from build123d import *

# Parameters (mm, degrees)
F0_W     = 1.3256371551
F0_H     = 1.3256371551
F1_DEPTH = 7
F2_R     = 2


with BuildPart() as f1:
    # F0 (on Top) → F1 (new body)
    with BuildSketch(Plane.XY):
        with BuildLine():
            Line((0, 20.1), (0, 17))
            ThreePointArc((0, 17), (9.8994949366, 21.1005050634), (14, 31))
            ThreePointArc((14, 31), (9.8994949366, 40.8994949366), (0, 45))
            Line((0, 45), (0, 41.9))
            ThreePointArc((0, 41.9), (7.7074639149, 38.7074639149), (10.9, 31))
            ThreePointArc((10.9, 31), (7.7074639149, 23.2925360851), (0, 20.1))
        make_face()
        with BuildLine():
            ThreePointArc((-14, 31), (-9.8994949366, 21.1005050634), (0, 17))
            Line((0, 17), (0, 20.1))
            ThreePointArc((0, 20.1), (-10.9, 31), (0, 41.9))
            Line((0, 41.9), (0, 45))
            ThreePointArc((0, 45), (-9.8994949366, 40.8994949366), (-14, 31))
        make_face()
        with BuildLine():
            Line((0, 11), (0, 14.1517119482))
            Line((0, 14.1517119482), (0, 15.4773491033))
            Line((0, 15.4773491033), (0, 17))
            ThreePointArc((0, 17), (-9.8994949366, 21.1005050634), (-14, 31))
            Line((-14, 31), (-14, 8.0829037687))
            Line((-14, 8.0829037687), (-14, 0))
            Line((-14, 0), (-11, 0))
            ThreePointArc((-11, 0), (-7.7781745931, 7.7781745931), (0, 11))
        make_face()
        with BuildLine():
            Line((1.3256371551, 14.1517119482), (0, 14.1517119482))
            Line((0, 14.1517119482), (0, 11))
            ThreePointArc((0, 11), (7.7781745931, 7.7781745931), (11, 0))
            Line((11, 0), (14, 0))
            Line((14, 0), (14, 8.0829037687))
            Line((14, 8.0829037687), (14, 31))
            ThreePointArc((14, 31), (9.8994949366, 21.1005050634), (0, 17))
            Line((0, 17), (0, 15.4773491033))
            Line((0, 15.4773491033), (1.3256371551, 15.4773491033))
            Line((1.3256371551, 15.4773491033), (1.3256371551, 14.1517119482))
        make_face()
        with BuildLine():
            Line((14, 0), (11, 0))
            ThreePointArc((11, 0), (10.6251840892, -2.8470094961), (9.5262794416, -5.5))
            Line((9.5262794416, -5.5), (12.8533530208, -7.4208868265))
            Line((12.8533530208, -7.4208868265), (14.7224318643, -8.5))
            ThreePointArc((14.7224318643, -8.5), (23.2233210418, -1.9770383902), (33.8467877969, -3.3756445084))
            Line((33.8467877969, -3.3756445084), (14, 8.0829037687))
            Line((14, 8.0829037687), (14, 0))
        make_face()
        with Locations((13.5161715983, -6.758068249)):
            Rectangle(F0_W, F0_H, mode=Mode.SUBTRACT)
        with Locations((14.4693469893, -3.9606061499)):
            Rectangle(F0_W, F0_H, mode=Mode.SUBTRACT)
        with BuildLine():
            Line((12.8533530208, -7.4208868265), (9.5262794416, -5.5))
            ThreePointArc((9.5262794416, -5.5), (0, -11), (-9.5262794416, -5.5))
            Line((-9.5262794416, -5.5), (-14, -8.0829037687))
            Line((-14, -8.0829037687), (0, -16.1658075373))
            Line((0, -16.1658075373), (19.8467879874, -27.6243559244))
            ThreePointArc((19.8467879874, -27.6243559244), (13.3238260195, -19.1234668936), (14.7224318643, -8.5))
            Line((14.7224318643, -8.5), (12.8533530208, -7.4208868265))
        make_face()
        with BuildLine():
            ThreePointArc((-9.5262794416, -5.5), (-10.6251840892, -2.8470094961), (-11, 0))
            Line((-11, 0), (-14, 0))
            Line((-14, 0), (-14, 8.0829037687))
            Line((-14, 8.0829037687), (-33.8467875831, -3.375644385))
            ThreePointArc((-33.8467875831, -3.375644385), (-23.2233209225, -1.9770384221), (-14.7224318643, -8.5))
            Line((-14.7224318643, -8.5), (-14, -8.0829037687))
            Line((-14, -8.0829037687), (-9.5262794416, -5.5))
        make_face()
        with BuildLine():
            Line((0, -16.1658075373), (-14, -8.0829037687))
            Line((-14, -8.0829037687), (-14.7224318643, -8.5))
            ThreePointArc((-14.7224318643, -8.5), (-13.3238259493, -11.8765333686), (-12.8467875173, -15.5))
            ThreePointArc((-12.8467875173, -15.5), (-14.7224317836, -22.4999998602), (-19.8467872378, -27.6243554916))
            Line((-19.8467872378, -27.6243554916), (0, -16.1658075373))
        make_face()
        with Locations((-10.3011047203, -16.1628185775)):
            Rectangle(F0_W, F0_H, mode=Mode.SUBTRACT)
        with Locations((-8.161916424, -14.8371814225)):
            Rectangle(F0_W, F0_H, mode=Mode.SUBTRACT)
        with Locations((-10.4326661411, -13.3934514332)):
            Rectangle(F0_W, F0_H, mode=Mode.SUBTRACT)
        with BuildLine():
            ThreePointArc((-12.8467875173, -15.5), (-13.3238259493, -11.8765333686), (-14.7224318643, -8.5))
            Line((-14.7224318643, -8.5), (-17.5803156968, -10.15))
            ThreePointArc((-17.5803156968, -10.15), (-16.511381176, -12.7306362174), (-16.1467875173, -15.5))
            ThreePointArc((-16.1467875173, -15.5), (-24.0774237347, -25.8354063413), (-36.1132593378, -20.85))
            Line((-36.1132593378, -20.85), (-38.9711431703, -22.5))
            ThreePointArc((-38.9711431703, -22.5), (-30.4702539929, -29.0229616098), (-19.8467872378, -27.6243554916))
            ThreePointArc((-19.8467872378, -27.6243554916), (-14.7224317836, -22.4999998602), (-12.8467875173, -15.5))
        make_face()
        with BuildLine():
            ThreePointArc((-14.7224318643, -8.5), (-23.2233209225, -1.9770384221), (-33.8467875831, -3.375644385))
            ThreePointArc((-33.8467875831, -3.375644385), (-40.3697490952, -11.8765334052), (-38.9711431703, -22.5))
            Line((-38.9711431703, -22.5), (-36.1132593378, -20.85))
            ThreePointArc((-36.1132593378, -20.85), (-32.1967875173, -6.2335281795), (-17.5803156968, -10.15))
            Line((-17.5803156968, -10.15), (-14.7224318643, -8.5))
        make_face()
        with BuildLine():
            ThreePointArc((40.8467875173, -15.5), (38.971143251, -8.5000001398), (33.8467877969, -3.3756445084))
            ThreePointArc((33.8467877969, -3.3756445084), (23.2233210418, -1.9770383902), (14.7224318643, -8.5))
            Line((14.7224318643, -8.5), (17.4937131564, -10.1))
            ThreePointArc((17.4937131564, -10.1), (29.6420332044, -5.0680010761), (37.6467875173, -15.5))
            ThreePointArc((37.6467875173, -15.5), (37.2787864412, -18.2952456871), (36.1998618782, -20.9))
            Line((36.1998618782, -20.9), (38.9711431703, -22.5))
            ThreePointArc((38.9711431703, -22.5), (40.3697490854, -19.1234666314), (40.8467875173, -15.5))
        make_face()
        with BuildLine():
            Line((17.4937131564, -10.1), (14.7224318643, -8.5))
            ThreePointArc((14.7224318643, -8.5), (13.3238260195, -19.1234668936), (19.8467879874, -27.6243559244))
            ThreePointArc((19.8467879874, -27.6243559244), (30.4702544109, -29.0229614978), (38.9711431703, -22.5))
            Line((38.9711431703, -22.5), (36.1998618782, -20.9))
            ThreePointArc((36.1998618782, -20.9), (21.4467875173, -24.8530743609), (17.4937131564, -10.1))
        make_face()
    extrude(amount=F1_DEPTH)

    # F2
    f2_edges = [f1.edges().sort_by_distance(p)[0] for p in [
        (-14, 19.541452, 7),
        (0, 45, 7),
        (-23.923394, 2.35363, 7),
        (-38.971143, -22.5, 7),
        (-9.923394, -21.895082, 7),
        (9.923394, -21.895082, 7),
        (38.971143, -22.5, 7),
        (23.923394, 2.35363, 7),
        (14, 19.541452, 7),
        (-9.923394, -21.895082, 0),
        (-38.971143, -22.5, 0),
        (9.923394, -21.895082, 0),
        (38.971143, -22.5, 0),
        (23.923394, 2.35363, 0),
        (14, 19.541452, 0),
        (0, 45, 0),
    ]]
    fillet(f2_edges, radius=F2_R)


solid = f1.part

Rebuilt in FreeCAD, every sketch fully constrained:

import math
import FreeCAD as App
import Part
import Sketcher
from FreeCAD import Vector
Q = App.Units.Quantity


def edges_at(feature, points):
    """Names of the edges that pass closest to the given points."""
    edges = feature.Shape.Edges
    near = lambda p: min(range(len(edges)), key=lambda i: edges[i].distToShape(Part.Vertex(*p))[0])
    return sorted({f"Edge{near(p) + 1}" for p in points})


def add_polygon(sketch, points):
    """Adds a closed chain of lines whose ends are joined by coincident constraints."""
    first, n = sketch.GeometryCount, len(points)
    for a, b in zip(points, points[1:] + points[:1]):
        sketch.addGeometry(Part.LineSegment(App.Vector(*a, 0), App.Vector(*b, 0)), False)
    for i in range(n):
        sketch.addConstraint(Sketcher.Constraint("Coincident", first + i, 2, first + (i + 1) % n, 1))

doc = App.newDocument("Part")
body = doc.addObject("PartDesign::Body", "Body")

# Sketch on XY plane
sketch1 = body.newObject("Sketcher::SketchObject", "Sketch")
sketch1.AttachmentSupport = (doc.getObject("XY_Plane"), [""])
sketch1.MapMode = "FlatFace"
sketch1.addGeometry(Part.LineSegment(Vector(33.8, -3.4, 0), Vector(14, 8.1, 0)), False)  # 0
sketch1.addGeometry(Part.LineSegment(Vector(14, 8.1, 0), Vector(14, 31, 0)), False)  # 1
sketch1.addGeometry(Part.ArcOfCircle(Part.Circle(Vector(0, 31, 0), Vector(0, 0, 1), 14), math.radians(0), math.radians(90)), False)  # 2
sketch1.addGeometry(Part.ArcOfCircle(Part.Circle(Vector(0, 31, 0), Vector(0, 0, 1), 14), math.radians(90), math.radians(180)), False)  # 3
sketch1.addGeometry(Part.LineSegment(Vector(-14, 31, 0), Vector(-14, 8.1, 0)), False)  # 4
sketch1.addGeometry(Part.LineSegment(Vector(-14, 8.1, 0), Vector(-33.8, -3.4, 0)), False)  # 5
sketch1.addGeometry(Part.ArcOfCircle(Part.Circle(Vector(-26.8, -15.5, 0), Vector(0, 0, 1), 14), math.radians(120), math.radians(210)), False)  # 6
sketch1.addGeometry(Part.ArcOfCircle(Part.Circle(Vector(-26.8, -15.5, 0), Vector(0, 0, 1), 14), math.radians(-150), math.radians(-60)), False)  # 7
sketch1.addGeometry(Part.LineSegment(Vector(-19.8, -27.6, 0), Vector(0, -16.2, 0)), False)  # 8
sketch1.addGeometry(Part.LineSegment(Vector(0, -16.2, 0), Vector(19.8, -27.6, 0)), False)  # 9
sketch1.addGeometry(Part.ArcOfCircle(Part.Circle(Vector(26.8, -15.5, 0), Vector(0, 0, 1), 14), math.radians(-120), math.radians(-30)), False)  # 10
sketch1.addGeometry(Part.ArcOfCircle(Part.Circle(Vector(26.8, -15.5, 0), Vector(0, 0, 1), 14), math.radians(-30), math.radians(0)), False)  # 11
sketch1.addGeometry(Part.ArcOfCircle(Part.Circle(Vector(26.8, -15.5, 0), Vector(0, 0, 1), 14), math.radians(0), math.radians(60)), False)  # 12
sketch1.addGeometry(Part.ArcOfCircle(Part.Circle(Vector(26.8, -15.5, 0), Vector(0, 0, 1), 10.8), math.radians(0), math.radians(150)), False)  # 13
sketch1.addGeometry(Part.ArcOfCircle(Part.Circle(Vector(26.8, -15.5, 0), Vector(0, 0, 1), 10.8), math.radians(-30), math.radians(0)), False)  # 14
sketch1.addGeometry(Part.ArcOfCircle(Part.Circle(Vector(26.8, -15.5, 0), Vector(0, 0, 1), 10.8), math.radians(150), math.radians(330)), False)  # 15
sketch1.addGeometry(Part.ArcOfCircle(Part.Circle(Vector(-26.8, -15.5, 0), Vector(0, 0, 1), 10.7), math.radians(0), math.radians(30)), False)  # 16
sketch1.addGeometry(Part.ArcOfCircle(Part.Circle(Vector(-26.8, -15.5, 0), Vector(0, 0, 1), 10.7), math.radians(30), math.radians(360)), False)  # 17
add_polygon(sketch1, [(-9.6, -16.8), (-11, -16.8), (-11, -15.5), (-9.6, -15.5)])  # lines 18-21
add_polygon(sketch1, [(-9.8, -14.1), (-11.1, -14.1), (-11.1, -12.7), (-9.8, -12.7)])  # lines 22-25
add_polygon(sketch1, [(-7.5, -15.5), (-8.8, -15.5), (-8.8, -14.2), (-7.5, -14.2)])  # lines 26-29
sketch1.addGeometry(Part.ArcOfCircle(Part.Circle(Vector(0, 0, 0), Vector(0, 0, 1), 11), math.radians(90), math.radians(180)), False)  # 30
sketch1.addGeometry(Part.ArcOfCircle(Part.Circle(Vector(0, 0, 0), Vector(0, 0, 1), 11), math.radians(0), math.radians(90)), False)  # 31
sketch1.addGeometry(Part.ArcOfCircle(Part.Circle(Vector(0, 0, 0), Vector(0, 0, 1), 11), math.radians(-30), math.radians(0)), False)  # 32
sketch1.addGeometry(Part.ArcOfCircle(Part.Circle(Vector(0, 0, 0), Vector(0, 0, 1), 11), math.radians(-150), math.radians(-30)), False)  # 33
sketch1.addGeometry(Part.ArcOfCircle(Part.Circle(Vector(0, 0, 0), Vector(0, 0, 1), 11), math.radians(180), math.radians(210)), False)  # 34
add_polygon(sketch1, [(14.2, -7.4), (12.9, -7.4), (12.9, -6.1), (14.2, -6.1)])  # lines 35-38
add_polygon(sketch1, [(15.1, -4.6), (13.8, -4.6), (13.8, -3.3), (15.1, -3.3)])  # lines 39-42
add_polygon(sketch1, [(0, 14.2), (0, 15.5), (1.3, 15.5), (1.3, 14.2)])  # lines 43-46
sketch1.addGeometry(Part.ArcOfCircle(Part.Circle(Vector(0, 31, 0), Vector(0, 0, 1), 10.9), math.radians(0), math.radians(90)), False)  # 47
sketch1.addGeometry(Part.ArcOfCircle(Part.Circle(Vector(0, 31, 0), Vector(0, 0, 1), 10.9), math.radians(-90), math.radians(0)), False)  # 48
sketch1.addGeometry(Part.ArcOfCircle(Part.Circle(Vector(0, 31, 0), Vector(0, 0, 1), 10.9), math.radians(90), math.radians(270)), False)  # 49
sketch1.addConstraint(Sketcher.Constraint("Coincident", 0, 2, 1, 1))
sketch1.addConstraint(Sketcher.Constraint("Tangent", 1, 2, 2, 1))
sketch1.addConstraint(Sketcher.Constraint("Tangent", 2, 2, 3, 1))
sketch1.addConstraint(Sketcher.Constraint("Tangent", 3, 2, 4, 1))
sketch1.addConstraint(Sketcher.Constraint("Coincident", 4, 2, 5, 1))
sketch1.addConstraint(Sketcher.Constraint("Tangent", 5, 2, 6, 1))
sketch1.addConstraint(Sketcher.Constraint("Tangent", 6, 2, 7, 1))
sketch1.addConstraint(Sketcher.Constraint("Tangent", 7, 2, 8, 1))
sketch1.addConstraint(Sketcher.Constraint("Coincident", 8, 2, 9, 1))
sketch1.addConstraint(Sketcher.Constraint("Tangent", 9, 2, 10, 1))
sketch1.addConstraint(Sketcher.Constraint("Tangent", 10, 2, 11, 1))
sketch1.addConstraint(Sketcher.Constraint("Tangent", 11, 2, 12, 1))
sketch1.addConstraint(Sketcher.Constraint("Tangent", 12, 2, 0, 1))
sketch1.addConstraint(Sketcher.Constraint("Tangent", 13, 1, 14, 2))
sketch1.addConstraint(Sketcher.Constraint("Tangent", 14, 1, 15, 2))
sketch1.addConstraint(Sketcher.Constraint("Tangent", 15, 1, 13, 2))
sketch1.addConstraint(Sketcher.Constraint("Tangent", 16, 1, 17, 2))
sketch1.addConstraint(Sketcher.Constraint("Coincident", 17, 1, 16, 2))
sketch1.addConstraint(Sketcher.Constraint("Tangent", 30, 1, 31, 2))
sketch1.addConstraint(Sketcher.Constraint("Tangent", 31, 1, 32, 2))
sketch1.addConstraint(Sketcher.Constraint("Tangent", 32, 1, 33, 2))
sketch1.addConstraint(Sketcher.Constraint("Tangent", 33, 1, 34, 2))
sketch1.addConstraint(Sketcher.Constraint("Tangent", 34, 1, 30, 2))
sketch1.addConstraint(Sketcher.Constraint("Tangent", 47, 1, 48, 2))
sketch1.addConstraint(Sketcher.Constraint("Tangent", 48, 1, 49, 2))
sketch1.addConstraint(Sketcher.Constraint("Tangent", 49, 1, 47, 2))
sketch1.addConstraint(Sketcher.Constraint("Vertical", 1))
sketch1.addConstraint(Sketcher.Constraint("Vertical", 4))
sketch1.addConstraint(Sketcher.Constraint("Horizontal", 18))
sketch1.addConstraint(Sketcher.Constraint("Vertical", 19))
sketch1.addConstraint(Sketcher.Constraint("Horizontal", 20))
sketch1.addConstraint(Sketcher.Constraint("Vertical", 21))
sketch1.addConstraint(Sketcher.Constraint("Horizontal", 22))
sketch1.addConstraint(Sketcher.Constraint("Vertical", 23))
sketch1.addConstraint(Sketcher.Constraint("Horizontal", 24))
sketch1.addConstraint(Sketcher.Constraint("Vertical", 25))
sketch1.addConstraint(Sketcher.Constraint("Horizontal", 26))
sketch1.addConstraint(Sketcher.Constraint("Vertical", 27))
sketch1.addConstraint(Sketcher.Constraint("Horizontal", 28))
sketch1.addConstraint(Sketcher.Constraint("Vertical", 29))
sketch1.addConstraint(Sketcher.Constraint("Horizontal", 35))
sketch1.addConstraint(Sketcher.Constraint("Vertical", 36))
sketch1.addConstraint(Sketcher.Constraint("Horizontal", 37))
sketch1.addConstraint(Sketcher.Constraint("Vertical", 38))
sketch1.addConstraint(Sketcher.Constraint("Horizontal", 39))
sketch1.addConstraint(Sketcher.Constraint("Vertical", 40))
sketch1.addConstraint(Sketcher.Constraint("Horizontal", 41))
sketch1.addConstraint(Sketcher.Constraint("Vertical", 42))
sketch1.addConstraint(Sketcher.Constraint("Vertical", 43))
sketch1.addConstraint(Sketcher.Constraint("Horizontal", 44))
sketch1.addConstraint(Sketcher.Constraint("Vertical", 45))
sketch1.addConstraint(Sketcher.Constraint("Horizontal", 46))
sketch1.addConstraint(Sketcher.Constraint("Coincident", 30, 3, -1, 1))
sketch1.addConstraint(Sketcher.Constraint("Coincident", 32, 3, -1, 1))
sketch1.addConstraint(Sketcher.Constraint("Coincident", 12, 3, 10, 3))
sketch1.addConstraint(Sketcher.Constraint("Coincident", 13, 3, 10, 3))
sketch1.addConstraint(Sketcher.Constraint("Coincident", 16, 3, 6, 3))
sketch1.addConstraint(Sketcher.Constraint("Coincident", 47, 3, 2, 3))
sketch1.addConstraint(Sketcher.Constraint("Equal", 2, 3))
sketch1.addConstraint(Sketcher.Constraint("Equal", 3, 6))
sketch1.addConstraint(Sketcher.Constraint("Equal", 6, 7))
sketch1.addConstraint(Sketcher.Constraint("Equal", 7, 10))
sketch1.addConstraint(Sketcher.Constraint("Symmetric", 6, 3, 10, 3, -2))
sketch1.addConstraint(Sketcher.Constraint("Symmetric", 0, 2, 4, 2, -2))
sketch1.addConstraint(Sketcher.Constraint("PointOnObject", 2, 2, -2))
sketch1.addConstraint(Sketcher.Constraint("PointOnObject", 8, 2, -2))
sketch1.addConstraint(Sketcher.Constraint("PointOnObject", 30, 1, -2))
sketch1.addConstraint(Sketcher.Constraint("PointOnObject", 31, 1, -1))
sketch1.addConstraint(Sketcher.Constraint("PointOnObject", 34, 1, -1))
sketch1.addConstraint(Sketcher.Constraint("PointOnObject", 43, 2, -2))
sketch1.addConstraint(Sketcher.Constraint("PointOnObject", 48, 1, -2))
sketch1.addConstraint(Sketcher.Constraint("PointOnObject", 49, 1, -2))
sketch1.addConstraint(Sketcher.Constraint("Parallel", 5, 8))
sketch1.addConstraint(Sketcher.Constraint("Horizontal", 6, 2, 10, 2))
sketch1.addConstraint(Sketcher.Constraint("Horizontal", 17, 3, 11, 2))
sketch1.addConstraint(Sketcher.Constraint("Horizontal", 11, 2, 13, 1))
sketch1.addConstraint(Sketcher.Constraint("Horizontal", 13, 1, 16, 1))
sketch1.addConstraint(Sketcher.Constraint("Horizontal", 16, 1, 19, 2))
sketch1.addConstraint(Sketcher.Constraint("Horizontal", 20, 2, 26, 2))
sketch1.addConstraint(Sketcher.Constraint("Horizontal", 32, 1, 33, 1))
sketch1.addConstraint(Sketcher.Constraint("Horizontal", 3, 2, 47, 1))
sketch1.addConstraint(Sketcher.Constraint("Equal", 20, 22))
sketch1.addConstraint(Sketcher.Constraint("Equal", 24, 26))
sketch1.addConstraint(Sketcher.Constraint("Equal", 28, 35))
sketch1.addConstraint(Sketcher.Constraint("Equal", 37, 39))
sketch1.addConstraint(Sketcher.Constraint("Equal", 41, 44))
sketch1.addConstraint(Sketcher.Constraint("Equal", 46, 19))
sketch1.addConstraint(Sketcher.Constraint("Equal", 21, 23))
sketch1.addConstraint(Sketcher.Constraint("Equal", 25, 27))
sketch1.addConstraint(Sketcher.Constraint("Equal", 29, 36))
sketch1.addConstraint(Sketcher.Constraint("Equal", 38, 40))
sketch1.addConstraint(Sketcher.Constraint("Equal", 42, 43))
sketch1.addConstraint(Sketcher.Constraint("Equal", 5, 8))
sketch1.addConstraint(Sketcher.Constraint("Radius", 2, Q("14 mm")))
sketch1.addConstraint(Sketcher.Constraint("Radius", 30, Q("11 mm")))
sketch1.addConstraint(Sketcher.Constraint("Radius", 13, Q("10.8 mm")))
sketch1.addConstraint(Sketcher.Constraint("Radius", 16, Q("10.7 mm")))
sketch1.addConstraint(Sketcher.Constraint("Radius", 47, Q("10.9 mm")))
sketch1.addConstraint(Sketcher.Constraint("DistanceY", -1, 1, 2, 3, Q("31 mm")))
sketch1.addConstraint(Sketcher.Constraint("DistanceY", 6, 3, -1, 1, Q("15.5 mm")))
sketch1.addConstraint(Sketcher.Constraint("DistanceY", 6, 2, -1, 1, Q("22.5 mm")))
sketch1.addConstraint(Sketcher.Constraint("DistanceY", 14, 1, -1, 1, Q("20.9 mm")))
sketch1.addConstraint(Sketcher.Constraint("DistanceY", 15, 1, -1, 1, Q("10.1 mm")))
sketch1.addConstraint(Sketcher.Constraint("DistanceY", 32, 1, -1, 1, Q("5.5 mm")))
sketch1.addConstraint(Sketcher.Constraint("DistanceY", 17, 1, -1, 1, Q("10.15 mm")))
sketch1.addConstraint(Sketcher.Constraint("DistanceX", 18, 2, 18, 1, Q("1.325637 mm")))
sketch1.addConstraint(Sketcher.Constraint("DistanceY", 1, 1, 1, 2, Q("22.917096 mm")))
sketch1.addConstraint(Sketcher.Constraint("DistanceY", 22, 2, -1, 1, Q("14.05627 mm")))
sketch1.addConstraint(Sketcher.Constraint("DistanceY", 36, 2, -1, 1, Q("6.09525 mm")))
sketch1.addConstraint(Sketcher.Constraint("DistanceX", -1, 1, 37, 2, Q("14.17899 mm")))
sketch1.addConstraint(Sketcher.Constraint("DistanceX", -1, 1, 39, 2, Q("13.806528 mm")))
sketch1.addConstraint(Sketcher.Constraint("DistanceY", -1, 1, 43, 2, Q("15.477349 mm")))
sketch1.addConstraint(Sketcher.Constraint("DistanceX", 18, 2, -1, 1, Q("10.963923 mm")))
sketch1.addConstraint(Sketcher.Constraint("DistanceX", 22, 2, -1, 1, Q("11.095485 mm")))
sketch1.addConstraint(Sketcher.Constraint("DistanceX", 26, 2, -1, 1, Q("8.824735 mm")))
sketch1.addConstraint(Sketcher.Constraint("DistanceY", 39, 2, -1, 1, Q("4.623425 mm")))
pad1 = body.newObject("PartDesign::Pad", "Pad")
pad1.Profile = sketch1
pad1.Length = 7
doc.recompute()

fillet = body.newObject("PartDesign::Fillet", "Fillet")
fillet.Base = (pad1, edges_at(pad1, [
    (-14, 19.541, 7),
    (0, 45, 3.5),
    (-23.923, 2.354, 7),
    (-40.37, -11.877, 7),
    (-9.923, -21.895, 7),
    (9.923, -21.895, 7),
    (30.47, -29.023, 7),
    (23.923, 2.354, 7),
    (14, 19.541, 7),
    (-9.923, -21.895, 0),
    (-40.37, -11.877, 0),
    (9.923, -21.895, 0),
    (30.47, -29.023, 0),
    (23.923, 2.354, 0),
    (14, 19.541, 0),
    (0, 45, 3.5),
]))
fillet.Radius = 2

doc.recompute()
